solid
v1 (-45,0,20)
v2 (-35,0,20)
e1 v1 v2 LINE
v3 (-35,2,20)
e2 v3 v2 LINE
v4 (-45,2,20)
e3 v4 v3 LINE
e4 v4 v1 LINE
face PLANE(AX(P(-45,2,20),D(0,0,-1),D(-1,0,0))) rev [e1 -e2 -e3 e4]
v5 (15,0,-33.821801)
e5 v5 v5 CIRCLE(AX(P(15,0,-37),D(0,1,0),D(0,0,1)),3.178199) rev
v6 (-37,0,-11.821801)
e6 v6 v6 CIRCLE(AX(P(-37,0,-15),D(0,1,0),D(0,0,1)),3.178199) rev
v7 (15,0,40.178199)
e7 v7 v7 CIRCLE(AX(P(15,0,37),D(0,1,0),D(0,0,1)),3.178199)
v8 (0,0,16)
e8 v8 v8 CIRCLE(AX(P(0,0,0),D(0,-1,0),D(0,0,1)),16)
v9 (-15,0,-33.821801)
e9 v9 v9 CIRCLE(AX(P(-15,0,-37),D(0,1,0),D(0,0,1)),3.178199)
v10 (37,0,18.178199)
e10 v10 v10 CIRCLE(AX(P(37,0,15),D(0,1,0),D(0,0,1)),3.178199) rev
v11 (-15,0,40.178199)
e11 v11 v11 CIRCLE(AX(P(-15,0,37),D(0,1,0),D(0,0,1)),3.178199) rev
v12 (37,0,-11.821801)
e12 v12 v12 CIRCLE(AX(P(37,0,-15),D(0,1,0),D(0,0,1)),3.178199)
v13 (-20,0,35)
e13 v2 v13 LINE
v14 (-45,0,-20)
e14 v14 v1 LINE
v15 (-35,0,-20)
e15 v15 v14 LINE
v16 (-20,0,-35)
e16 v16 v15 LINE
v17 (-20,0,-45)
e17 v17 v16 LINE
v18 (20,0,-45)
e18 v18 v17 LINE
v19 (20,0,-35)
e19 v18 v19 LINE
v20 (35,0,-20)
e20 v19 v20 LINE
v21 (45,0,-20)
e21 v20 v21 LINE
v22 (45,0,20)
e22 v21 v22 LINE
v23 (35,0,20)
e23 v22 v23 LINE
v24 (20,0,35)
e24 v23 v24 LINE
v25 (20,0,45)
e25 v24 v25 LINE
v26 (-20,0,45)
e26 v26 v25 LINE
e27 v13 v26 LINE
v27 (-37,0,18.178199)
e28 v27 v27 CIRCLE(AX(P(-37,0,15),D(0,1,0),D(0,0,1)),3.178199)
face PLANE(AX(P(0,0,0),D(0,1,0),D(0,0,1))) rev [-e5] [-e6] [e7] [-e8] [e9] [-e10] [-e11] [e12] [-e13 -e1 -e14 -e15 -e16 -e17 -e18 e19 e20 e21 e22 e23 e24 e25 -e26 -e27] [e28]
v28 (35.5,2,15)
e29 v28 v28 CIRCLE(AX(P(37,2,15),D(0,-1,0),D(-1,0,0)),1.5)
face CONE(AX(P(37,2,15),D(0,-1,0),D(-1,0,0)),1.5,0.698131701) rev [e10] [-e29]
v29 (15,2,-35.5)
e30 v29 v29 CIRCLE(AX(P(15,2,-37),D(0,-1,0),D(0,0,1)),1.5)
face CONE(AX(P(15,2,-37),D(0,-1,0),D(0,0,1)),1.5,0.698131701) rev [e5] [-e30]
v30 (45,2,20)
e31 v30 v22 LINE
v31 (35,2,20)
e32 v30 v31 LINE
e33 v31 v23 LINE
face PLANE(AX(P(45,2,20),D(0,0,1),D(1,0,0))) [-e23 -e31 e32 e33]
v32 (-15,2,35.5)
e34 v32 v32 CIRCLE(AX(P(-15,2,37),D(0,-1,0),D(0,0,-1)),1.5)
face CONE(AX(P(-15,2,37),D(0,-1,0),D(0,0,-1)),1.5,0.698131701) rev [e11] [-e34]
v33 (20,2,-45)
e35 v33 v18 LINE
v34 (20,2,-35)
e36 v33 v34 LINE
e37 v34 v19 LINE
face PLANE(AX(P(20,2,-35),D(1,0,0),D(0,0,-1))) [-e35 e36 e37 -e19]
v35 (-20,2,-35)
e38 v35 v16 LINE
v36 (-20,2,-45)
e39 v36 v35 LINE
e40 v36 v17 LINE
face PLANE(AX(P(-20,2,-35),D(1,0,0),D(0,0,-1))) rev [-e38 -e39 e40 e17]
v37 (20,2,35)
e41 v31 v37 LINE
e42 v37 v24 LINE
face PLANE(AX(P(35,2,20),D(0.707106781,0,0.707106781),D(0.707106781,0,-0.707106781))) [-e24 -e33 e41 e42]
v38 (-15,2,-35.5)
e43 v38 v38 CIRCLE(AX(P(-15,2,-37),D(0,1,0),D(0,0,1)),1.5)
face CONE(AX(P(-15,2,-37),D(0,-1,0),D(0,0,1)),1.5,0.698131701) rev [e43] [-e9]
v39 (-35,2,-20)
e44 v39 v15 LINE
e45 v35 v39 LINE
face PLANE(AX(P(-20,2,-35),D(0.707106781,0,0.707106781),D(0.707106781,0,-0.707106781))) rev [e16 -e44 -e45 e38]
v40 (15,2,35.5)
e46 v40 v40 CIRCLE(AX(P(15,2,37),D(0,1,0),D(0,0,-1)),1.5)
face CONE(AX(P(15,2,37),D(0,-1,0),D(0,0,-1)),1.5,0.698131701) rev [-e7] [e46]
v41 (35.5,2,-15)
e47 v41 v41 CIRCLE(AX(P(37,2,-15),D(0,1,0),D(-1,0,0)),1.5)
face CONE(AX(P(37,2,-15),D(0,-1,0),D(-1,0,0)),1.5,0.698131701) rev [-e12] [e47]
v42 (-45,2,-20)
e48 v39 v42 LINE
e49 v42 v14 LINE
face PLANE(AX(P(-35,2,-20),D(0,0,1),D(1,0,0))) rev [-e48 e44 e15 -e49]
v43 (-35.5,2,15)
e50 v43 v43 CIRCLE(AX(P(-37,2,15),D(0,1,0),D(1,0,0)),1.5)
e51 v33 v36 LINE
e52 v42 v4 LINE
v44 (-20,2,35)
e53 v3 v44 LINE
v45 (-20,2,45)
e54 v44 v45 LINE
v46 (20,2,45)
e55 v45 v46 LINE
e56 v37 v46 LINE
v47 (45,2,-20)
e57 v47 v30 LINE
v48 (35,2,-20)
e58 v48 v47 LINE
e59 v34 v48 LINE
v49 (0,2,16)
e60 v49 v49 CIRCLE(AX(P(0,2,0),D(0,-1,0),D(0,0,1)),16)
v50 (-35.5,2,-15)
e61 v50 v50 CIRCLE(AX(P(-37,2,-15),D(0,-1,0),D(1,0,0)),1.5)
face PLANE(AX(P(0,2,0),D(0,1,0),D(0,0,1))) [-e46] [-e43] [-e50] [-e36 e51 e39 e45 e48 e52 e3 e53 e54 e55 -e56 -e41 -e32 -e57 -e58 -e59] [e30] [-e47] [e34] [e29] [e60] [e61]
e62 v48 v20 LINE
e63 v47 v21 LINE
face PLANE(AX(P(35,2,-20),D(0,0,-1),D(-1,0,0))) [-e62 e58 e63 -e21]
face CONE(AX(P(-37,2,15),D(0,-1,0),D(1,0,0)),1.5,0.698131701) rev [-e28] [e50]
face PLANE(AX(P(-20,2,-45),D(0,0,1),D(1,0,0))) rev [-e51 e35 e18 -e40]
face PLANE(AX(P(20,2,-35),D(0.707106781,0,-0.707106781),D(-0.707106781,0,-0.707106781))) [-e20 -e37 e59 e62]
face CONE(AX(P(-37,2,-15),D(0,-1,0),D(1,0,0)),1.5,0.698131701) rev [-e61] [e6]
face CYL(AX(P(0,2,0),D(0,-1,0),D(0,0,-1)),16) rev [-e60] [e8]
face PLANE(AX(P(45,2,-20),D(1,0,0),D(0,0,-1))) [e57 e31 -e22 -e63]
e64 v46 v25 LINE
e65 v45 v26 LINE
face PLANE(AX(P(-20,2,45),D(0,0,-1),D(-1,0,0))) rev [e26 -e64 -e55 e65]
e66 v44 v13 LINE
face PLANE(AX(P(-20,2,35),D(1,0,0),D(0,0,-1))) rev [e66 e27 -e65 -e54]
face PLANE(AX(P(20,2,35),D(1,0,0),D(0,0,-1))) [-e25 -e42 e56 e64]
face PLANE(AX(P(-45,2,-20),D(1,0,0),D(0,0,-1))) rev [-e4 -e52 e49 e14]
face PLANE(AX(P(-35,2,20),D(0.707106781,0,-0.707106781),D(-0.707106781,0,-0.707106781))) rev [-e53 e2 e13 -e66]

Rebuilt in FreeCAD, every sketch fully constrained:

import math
import FreeCAD as App
import Part
import Sketcher

V = App.Vector

doc = App.newDocument("Part")
body = doc.addObject("PartDesign::Body", "Body")

# Sketch on XZ plane
sketch1 = doc.addObject("Sketcher::SketchObject", "Sketch")
body.addObject(sketch1)
sketch1.AttachmentSupport = (doc.XZ_Plane, [""])
sketch1.MapMode = "FlatFace"
sketch1.addGeometry(Part.LineSegment(V(-20, -45, 0), V(-20, -35, 0)), False)
sketch1.addGeometry(Part.LineSegment(V(-20, -35, 0), V(-35, -20, 0)), False)
sketch1.addGeometry(Part.LineSegment(V(-35, -20, 0), V(-45, -20, 0)), False)
sketch1.addGeometry(Part.LineSegment(V(-45, -20, 0), V(-45, 20, 0)), False)
sketch1.addGeometry(Part.LineSegment(V(-45, 20, 0), V(-35, 20, 0)), False)
sketch1.addGeometry(Part.LineSegment(V(-35, 20, 0), V(-20, 35, 0)), False)
sketch1.addGeometry(Part.LineSegment(V(-20, 35, 0), V(-20, 45, 0)), False)
sketch1.addGeometry(Part.LineSegment(V(-20, 45, 0), V(0, 45, 0)), False)
sketch1.addGeometry(Part.LineSegment(V(0, 45, 0), V(0, 16, 0)), False)
sketch1.addGeometry(Part.ArcOfCircle(Part.Circle(V(0, 0, 0), V(0, 0, 1), 16), math.radians(90), math.radians(270)), False)
sketch1.addGeometry(Part.LineSegment(V(0, -16, 0), V(0, -45, 0)), False)
sketch1.addGeometry(Part.LineSegment(V(0, -45, 0), V(-20, -45, 0)), False)
sketch1.addConstraint(Sketcher.Constraint("Coincident", 0, 2, 1, 1))
sketch1.addConstraint(Sketcher.Constraint("Coincident", 1, 2, 2, 1))
sketch1.addConstraint(Sketcher.Constraint("Coincident", 2, 2, 3, 1))
sketch1.addConstraint(Sketcher.Constraint("Coincident", 3, 2, 4, 1))
sketch1.addConstraint(Sketcher.Constraint("Coincident", 4, 2, 5, 1))
sketch1.addConstraint(Sketcher.Constraint("Coincident", 5, 2, 6, 1))
sketch1.addConstraint(Sketcher.Constraint("Coincident", 6, 2, 7, 1))
sketch1.addConstraint(Sketcher.Constraint("Coincident", 7, 2, 8, 1))
sketch1.addConstraint(Sketcher.Constraint("Coincident", 8, 2, 9, 1))
sketch1.addConstraint(Sketcher.Constraint("Coincident", 9, 2, 10, 1))
sketch1.addConstraint(Sketcher.Constraint("Coincident", 10, 2, 11, 1))
sketch1.addConstraint(Sketcher.Constraint("Coincident", 11, 2, 0, 1))
sketch1.addConstraint(Sketcher.Constraint("Vertical", 0))
sketch1.addConstraint(Sketcher.Constraint("Horizontal", 2))
sketch1.addConstraint(Sketcher.Constraint("Vertical", 3))
sketch1.addConstraint(Sketcher.Constraint("Horizontal", 4))
sketch1.addConstraint(Sketcher.Constraint("Vertical", 6))
sketch1.addConstraint(Sketcher.Constraint("Horizontal", 7))
sketch1.addConstraint(Sketcher.Constraint("Vertical", 8))
sketch1.addConstraint(Sketcher.Constraint("Vertical", 10))
sketch1.addConstraint(Sketcher.Constraint("Horizontal", 11))
sketch1.addConstraint(Sketcher.Constraint("Coincident", 9, 3, -1, 1))
sketch1.addConstraint(Sketcher.Constraint("Symmetric", 7, 2, 10, 2, -1, 1))
sketch1.addConstraint(Sketcher.Constraint("Symmetric", 1, 2, 4, 2, -1))
sketch1.addConstraint(Sketcher.Constraint("Symmetric", 0, 2, 5, 2, -1))
sketch1.addConstraint(Sketcher.Constraint("PointOnObject", 7, 2, -2))
sketch1.addConstraint(Sketcher.Constraint("Perpendicular", 1, 5))
sketch1.addConstraint(Sketcher.Constraint("Equal", 4, 0))
sketch1.addConstraint(Sketcher.Constraint("Radius", 9, 16.0))
sketch1.addConstraint(Sketcher.Constraint("DistanceX", 2, 2, 2, 1, 10.0))
sketch1.addConstraint(Sketcher.Constraint("DistanceX", 7, 1, 7, 2, 20.0))
sketch1.addConstraint(Sketcher.Constraint("DistanceY", 3, 1, 3, 2, 40.0))
sketch1.addConstraint(Sketcher.Constraint("DistanceY", 8, 2, 8, 1, 29.0))
pad1 = doc.addObject("PartDesign::Pad", "Pad")
body.addObject(pad1)
pad1.Profile = sketch1
pad1.Length = 2
pad1.Reversed = True
doc.recompute()

mirrored = doc.addObject("PartDesign::Mirrored", "Mirrored")
body.addObject(mirrored)
mirrored.Originals = [pad1]
mirrored.MirrorPlane = (doc.YZ_Plane, [""])
body.Tip = mirrored

# Sketch on XZ plane
sketch2 = doc.addObject("Sketcher::SketchObject", "Sketch001")
body.addObject(sketch2)
sketch2.AttachmentSupport = (doc.XZ_Plane, [""])
sketch2.MapMode = "FlatFace"
sketch2.AttachmentOffset = App.Placement(V(0, 0, -2), App.Rotation())
sketch2.addGeometry(Part.Circle(V(-15, -37, 0), V(0, 0, 1), 1.5), False)
sketch2.addConstraint(Sketcher.Constraint("Diameter", 0, 3.0))
sketch2.addConstraint(Sketcher.Constraint("DistanceX", 0, 3, -1, 1, 15.0))
sketch2.addConstraint(Sketcher.Constraint("DistanceY", 0, 3, -1, 1, 37.0))
pocket1 = doc.addObject("PartDesign::Pocket", "Pocket")
body.addObject(pocket1)
pocket1.Profile = sketch2
pocket1.Type = "ThroughAll"
pocket1.Reversed = True
pocket1.TaperAngle = 40
doc.recompute()

mirrored2 = doc.addObject("PartDesign::Mirrored", "Mirrored001")
body.addObject(mirrored2)
mirrored2.Originals = [pocket1]
mirrored2.MirrorPlane = (doc.YZ_Plane, [""])
body.Tip = mirrored2
doc.recompute()

mirrored3 = doc.addObject("PartDesign::Mirrored", "Mirrored002")
body.addObject(mirrored3)
mirrored3.Originals = [pocket1]
mirrored3.MirrorPlane = (doc.XY_Plane, [""])
body.Tip = mirrored3

# Sketch on XZ plane
sketch3 = doc.addObject("Sketcher::SketchObject", "Sketch002")
body.addObject(sketch3)
sketch3.AttachmentSupport = (doc.XZ_Plane, [""])
sketch3.MapMode = "FlatFace"
sketch3.AttachmentOffset = App.Placement(V(0, 0, -2), App.Rotation())
sketch3.addGeometry(Part.Circle(V(15, 37, 0), V(0, 0, 1), 1.5), False)
sketch3.addConstraint(Sketcher.Constraint("Diameter", 0, 3.0))
sketch3.addConstraint(Sketcher.Constraint("DistanceX", -1, 1, 0, 3, 15.0))
sketch3.addConstraint(Sketcher.Constraint("DistanceY", -1, 1, 0, 3, 37.0))
pocket2 = doc.addObject("PartDesign::Pocket", "Pocket001")
body.addObject(pocket2)
pocket2.Profile = sketch3
pocket2.Type = "ThroughAll"
pocket2.Reversed = True
pocket2.TaperAngle = 40
doc.recompute()

polarpattern = doc.addObject("PartDesign::PolarPattern", "PolarPattern")
body.addObject(polarpattern)
polarpattern.Originals = [pocket1]
polarpattern.Axis = (doc.Y_Axis, [""])
polarpattern.Angle = 90
polarpattern.Occurrences = 2
polarpattern.Reversed = True
body.Tip = polarpattern

# Sketch on XZ plane
sketch4 = doc.addObject("Sketcher::SketchObject", "Sketch003")
body.addObject(sketch4)
sketch4.AttachmentSupport = (doc.XZ_Plane, [""])
sketch4.MapMode = "FlatFace"
sketch4.AttachmentOffset = App.Placement(V(0, 0, -2), App.Rotation())
sketch4.addGeometry(Part.Circle(V(-37, -15, 0), V(0, 0, 1), 1.5), False)
sketch4.addConstraint(Sketcher.Constraint("Diameter", 0, 3.0))
sketch4.addConstraint(Sketcher.Constraint("DistanceX", 0, 3, -1, 1, 37.0))
sketch4.addConstraint(Sketcher.Constraint("DistanceY", 0, 3, -1, 1, 15.0))
pocket3 = doc.addObject("PartDesign::Pocket", "Pocket002")
body.addObject(pocket3)
pocket3.Profile = sketch4
pocket3.Type = "ThroughAll"
pocket3.Reversed = True
pocket3.TaperAngle = 40

# Sketch on XZ plane
sketch5 = doc.addObject("Sketcher::SketchObject", "Sketch004")
body.addObject(sketch5)
sketch5.AttachmentSupport = (doc.XZ_Plane, [""])
sketch5.MapMode = "FlatFace"
sketch5.AttachmentOffset = App.Placement(V(0, 0, -2), App.Rotation())
sketch5.addGeometry(Part.Circle(V(-37, 15, 0), V(0, 0, 1), 1.5), False)
sketch5.addConstraint(Sketcher.Constraint("Diameter", 0, 3.0))
sketch5.addConstraint(Sketcher.Constraint("DistanceX", 0, 3, -1, 1, 37.0))
sketch5.addConstraint(Sketcher.Constraint("DistanceY", -1, 1, 0, 3, 15.0))
pocket4 = doc.addObject("PartDesign::Pocket", "Pocket003")
body.addObject(pocket4)
pocket4.Profile = sketch5
pocket4.Type = "ThroughAll"
pocket4.Reversed = True
pocket4.TaperAngle = 40

# Sketch on XZ plane
sketch6 = doc.addObject("Sketcher::SketchObject", "Sketch005")
body.addObject(sketch6)
sketch6.AttachmentSupport = (doc.XZ_Plane, [""])
sketch6.MapMode = "FlatFace"
sketch6.AttachmentOffset = App.Placement(V(0, 0, -2), App.Rotation())
sketch6.addGeometry(Part.Circle(V(37, 15, 0), V(0, 0, 1), 1.5), False)
sketch6.addConstraint(Sketcher.Constraint("Diameter", 0, 3.0))
sketch6.addConstraint(Sketcher.Constraint("DistanceX", -1, 1, 0, 3, 37.0))
sketch6.addConstraint(Sketcher.Constraint("DistanceY", -1, 1, 0, 3, 15.0))
pocket5 = doc.addObject("PartDesign::Pocket", "Pocket004")
body.addObject(pocket5)
pocket5.Profile = sketch6
pocket5.Type = "ThroughAll"
pocket5.Reversed = True
pocket5.TaperAngle = 40

doc.recompute()
